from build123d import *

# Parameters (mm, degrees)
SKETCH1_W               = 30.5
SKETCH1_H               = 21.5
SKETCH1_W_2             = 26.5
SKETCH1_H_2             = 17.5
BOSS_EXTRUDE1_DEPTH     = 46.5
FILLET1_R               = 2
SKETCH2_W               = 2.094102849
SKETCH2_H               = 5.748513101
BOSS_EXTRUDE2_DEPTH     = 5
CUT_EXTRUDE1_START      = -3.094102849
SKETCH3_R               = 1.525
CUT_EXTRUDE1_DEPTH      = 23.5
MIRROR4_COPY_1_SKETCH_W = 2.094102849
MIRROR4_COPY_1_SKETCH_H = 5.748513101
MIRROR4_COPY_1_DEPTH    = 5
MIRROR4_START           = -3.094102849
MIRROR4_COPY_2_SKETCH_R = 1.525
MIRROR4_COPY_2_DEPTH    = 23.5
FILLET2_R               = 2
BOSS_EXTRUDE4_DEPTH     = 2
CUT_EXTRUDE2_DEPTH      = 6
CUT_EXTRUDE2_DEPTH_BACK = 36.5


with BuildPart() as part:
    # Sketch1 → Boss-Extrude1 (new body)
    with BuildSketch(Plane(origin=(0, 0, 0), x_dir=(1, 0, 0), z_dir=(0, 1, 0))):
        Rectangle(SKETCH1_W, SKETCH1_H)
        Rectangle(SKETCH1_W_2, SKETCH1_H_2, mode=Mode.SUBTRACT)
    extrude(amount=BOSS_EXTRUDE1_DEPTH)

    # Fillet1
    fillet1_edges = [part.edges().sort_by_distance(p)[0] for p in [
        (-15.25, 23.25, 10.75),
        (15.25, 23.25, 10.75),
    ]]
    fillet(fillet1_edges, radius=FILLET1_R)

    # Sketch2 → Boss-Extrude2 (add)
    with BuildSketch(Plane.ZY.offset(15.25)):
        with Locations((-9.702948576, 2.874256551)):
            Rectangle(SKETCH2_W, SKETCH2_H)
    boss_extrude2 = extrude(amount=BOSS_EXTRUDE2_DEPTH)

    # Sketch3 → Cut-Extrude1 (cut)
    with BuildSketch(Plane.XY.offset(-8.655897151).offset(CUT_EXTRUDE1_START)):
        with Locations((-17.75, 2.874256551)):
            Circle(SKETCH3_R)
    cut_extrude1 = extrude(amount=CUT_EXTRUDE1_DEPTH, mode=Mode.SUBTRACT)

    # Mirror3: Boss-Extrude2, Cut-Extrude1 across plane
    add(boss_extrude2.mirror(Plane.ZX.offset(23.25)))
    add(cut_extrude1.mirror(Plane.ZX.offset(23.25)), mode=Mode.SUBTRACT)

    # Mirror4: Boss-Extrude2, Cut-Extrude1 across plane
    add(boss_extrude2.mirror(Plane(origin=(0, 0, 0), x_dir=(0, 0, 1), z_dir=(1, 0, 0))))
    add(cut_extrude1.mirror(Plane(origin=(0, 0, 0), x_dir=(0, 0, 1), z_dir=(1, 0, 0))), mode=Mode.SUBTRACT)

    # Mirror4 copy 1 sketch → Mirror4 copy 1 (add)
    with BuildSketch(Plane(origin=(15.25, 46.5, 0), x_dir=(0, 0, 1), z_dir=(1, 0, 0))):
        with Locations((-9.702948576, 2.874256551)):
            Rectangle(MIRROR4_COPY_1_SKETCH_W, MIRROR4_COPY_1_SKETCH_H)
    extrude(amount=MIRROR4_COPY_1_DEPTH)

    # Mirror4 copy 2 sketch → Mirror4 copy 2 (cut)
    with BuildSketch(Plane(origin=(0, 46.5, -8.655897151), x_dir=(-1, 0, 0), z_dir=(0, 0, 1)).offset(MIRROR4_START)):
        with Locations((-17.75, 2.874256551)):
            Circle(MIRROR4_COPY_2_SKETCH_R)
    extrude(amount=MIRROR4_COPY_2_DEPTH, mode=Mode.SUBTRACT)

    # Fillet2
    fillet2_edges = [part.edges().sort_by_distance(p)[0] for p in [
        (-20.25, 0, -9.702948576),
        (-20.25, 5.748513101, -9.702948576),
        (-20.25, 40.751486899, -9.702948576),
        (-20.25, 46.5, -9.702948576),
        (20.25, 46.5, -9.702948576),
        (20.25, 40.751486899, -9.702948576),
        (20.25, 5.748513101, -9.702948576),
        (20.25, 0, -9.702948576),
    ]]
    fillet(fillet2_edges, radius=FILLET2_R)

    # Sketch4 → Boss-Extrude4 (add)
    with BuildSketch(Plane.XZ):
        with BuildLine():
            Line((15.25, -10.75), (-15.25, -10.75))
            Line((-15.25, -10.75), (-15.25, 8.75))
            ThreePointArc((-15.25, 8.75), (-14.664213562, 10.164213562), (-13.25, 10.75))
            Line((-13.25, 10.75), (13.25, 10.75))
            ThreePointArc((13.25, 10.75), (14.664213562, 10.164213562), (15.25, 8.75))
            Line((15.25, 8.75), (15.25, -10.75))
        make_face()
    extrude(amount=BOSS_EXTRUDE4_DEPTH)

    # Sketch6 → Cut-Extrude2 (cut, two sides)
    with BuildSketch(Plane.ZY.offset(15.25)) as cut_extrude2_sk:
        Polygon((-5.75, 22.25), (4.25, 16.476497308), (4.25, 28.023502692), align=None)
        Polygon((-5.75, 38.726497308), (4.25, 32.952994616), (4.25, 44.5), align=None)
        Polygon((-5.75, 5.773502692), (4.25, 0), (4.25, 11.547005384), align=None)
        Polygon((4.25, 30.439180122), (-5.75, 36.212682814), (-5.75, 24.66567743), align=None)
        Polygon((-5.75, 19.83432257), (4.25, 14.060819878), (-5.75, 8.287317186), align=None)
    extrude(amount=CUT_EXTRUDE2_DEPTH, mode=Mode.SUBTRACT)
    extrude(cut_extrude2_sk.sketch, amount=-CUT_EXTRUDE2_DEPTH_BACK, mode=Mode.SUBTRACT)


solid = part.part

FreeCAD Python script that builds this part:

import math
import FreeCAD as App
import Part
import Sketcher

V = App.Vector
Q = App.Units.Quantity


def edges_at(feature, points):
    """Names of the edges that pass closest to the given points."""
    edges = feature.Shape.Edges
    near = lambda p: min(range(len(edges)), key=lambda i: edges[i].distToShape(Part.Vertex(*p))[0])
    return sorted({f"Edge{near(p) + 1}" for p in points})

doc = App.newDocument("Part")
body = doc.addObject("PartDesign::Body", "Body")

# Sketch on XZ plane
sketch1 = doc.addObject("Sketcher::SketchObject", "Sketch")
body.addObject(sketch1)
sketch1.AttachmentSupport = (doc.XZ_Plane, [""])
sketch1.MapMode = "FlatFace"
sketch1.addGeometry(Part.LineSegment(V(-15, -11, 0), V(-15, 11, 0)), False)
sketch1.addGeometry(Part.LineSegment(V(-15, 11, 0), V(15, 11, 0)), False)
sketch1.addGeometry(Part.LineSegment(V(15, 11, 0), V(15, -11, 0)), False)
sketch1.addGeometry(Part.LineSegment(V(15, -11, 0), V(-15, -11, 0)), False)
sketch1.addGeometry(Part.LineSegment(V(13, 9, 0), V(-13, 9, 0)), False)
sketch1.addGeometry(Part.LineSegment(V(-13, 9, 0), V(-13, -9, 0)), False)
sketch1.addGeometry(Part.LineSegment(V(-13, -9, 0), V(13, -9, 0)), False)
sketch1.addGeometry(Part.LineSegment(V(13, -9, 0), V(13, 9, 0)), False)
sketch1.addConstraint(Sketcher.Constraint("Coincident", 0, 2, 1, 1))
sketch1.addConstraint(Sketcher.Constraint("Coincident", 1, 2, 2, 1))
sketch1.addConstraint(Sketcher.Constraint("Coincident", 2, 2, 3, 1))
sketch1.addConstraint(Sketcher.Constraint("Coincident", 3, 2, 0, 1))
sketch1.addConstraint(Sketcher.Constraint("Coincident", 4, 2, 5, 1))
sketch1.addConstraint(Sketcher.Constraint("Coincident", 5, 2, 6, 1))
sketch1.addConstraint(Sketcher.Constraint("Coincident", 6, 2, 7, 1))
sketch1.addConstraint(Sketcher.Constraint("Coincident", 7, 2, 4, 1))
sketch1.addConstraint(Sketcher.Constraint("Vertical", 0))
sketch1.addConstraint(Sketcher.Constraint("Horizontal", 1))
sketch1.addConstraint(Sketcher.Constraint("Vertical", 2))
sketch1.addConstraint(Sketcher.Constraint("Horizontal", 3))
sketch1.addConstraint(Sketcher.Constraint("Horizontal", 4))
sketch1.addConstraint(Sketcher.Constraint("Vertical", 5))
sketch1.addConstraint(Sketcher.Constraint("Horizontal", 6))
sketch1.addConstraint(Sketcher.Constraint("Vertical", 7))
sketch1.addConstraint(Sketcher.Constraint("Symmetric", 0, 2, 2, 2, -1, 1))
sketch1.addConstraint(Sketcher.Constraint("Symmetric", 4, 2, 6, 2, -1, 1))
sketch1.addConstraint(Sketcher.Constraint("DistanceX", 1, 1, 1, 2, 30.5))
sketch1.addConstraint(Sketcher.Constraint("DistanceX", 4, 2, 4, 1, 26.5))
sketch1.addConstraint(Sketcher.Constraint("DistanceY", 0, 1, 0, 2, 21.5))
sketch1.addConstraint(Sketcher.Constraint("DistanceY", 5, 2, 5, 1, 17.5))
pad1 = doc.addObject("PartDesign::Pad", "Pad")
body.addObject(pad1)
pad1.Profile = sketch1
pad1.Length = 46.5
pad1.Reversed = True
doc.recompute()

fillet = doc.addObject("PartDesign::Fillet", "Fillet")
body.addObject(fillet)
fillet.Base = (pad1, edges_at(pad1, [(-15.25, 23.25, 10.75), (15.25, 23.25, 10.75)]))
fillet.Radius = 2

# Sketch on YZ plane
sketch2 = doc.addObject("Sketcher::SketchObject", "Sketch001")
body.addObject(sketch2)
sketch2.AttachmentSupport = (doc.YZ_Plane, [""])
sketch2.MapMode = "FlatFace"
sketch2.AttachmentOffset = App.Placement(V(0, 0, -15.25), App.Rotation())
sketch2.addGeometry(Part.LineSegment(V(5.7, -10.8, 0), V(0, -10.8, 0)), False)
sketch2.addGeometry(Part.LineSegment(V(0, -10.8, 0), V(0, -8.7, 0)), False)
sketch2.addGeometry(Part.LineSegment(V(0, -8.7, 0), V(5.7, -8.7, 0)), False)
sketch2.addGeometry(Part.LineSegment(V(5.7, -8.7, 0), V(5.7, -10.8, 0)), False)
sketch2.addConstraint(Sketcher.Constraint("Coincident", 0, 2, 1, 1))
sketch2.addConstraint(Sketcher.Constraint("Coincident", 1, 2, 2, 1))
sketch2.addConstraint(Sketcher.Constraint("Coincident", 2, 2, 3, 1))
sketch2.addConstraint(Sketcher.Constraint("Coincident", 3, 2, 0, 1))
sketch2.addConstraint(Sketcher.Constraint("Horizontal", 0))
sketch2.addConstraint(Sketcher.Constraint("Vertical", 1))
sketch2.addConstraint(Sketcher.Constraint("Horizontal", 2))
sketch2.addConstraint(Sketcher.Constraint("Vertical", 3))
sketch2.addConstraint(Sketcher.Constraint("PointOnObject", 0, 2, -2))
sketch2.addConstraint(Sketcher.Constraint("DistanceY", 0, 2, -1, 1, 10.75))
sketch2.addConstraint(Sketcher.Constraint("DistanceX", 0, 2, 0, 1, 5.748513))
sketch2.addConstraint(Sketcher.Constraint("DistanceY", 1, 1, 1, 2, 2.094103))
pad2 = doc.addObject("PartDesign::Pad", "Pad001")
body.addObject(pad2)
pad2.Profile = sketch2
pad2.Length = 5
pad2.Reversed = True

# Sketch on XY plane
sketch3 = doc.addObject("Sketcher::SketchObject", "Sketch002")
body.addObject(sketch3)
sketch3.AttachmentSupport = (doc.XY_Plane, [""])
sketch3.MapMode = "FlatFace"
sketch3.AttachmentOffset = App.Placement(V(0, 0, -11.75), App.Rotation())
sketch3.addGeometry(Part.Circle(V(-17.8, 2.9, 0), V(0, 0, 1), 1.5), False)
sketch3.addConstraint(Sketcher.Constraint("Diameter", 0, 3.05))
sketch3.addConstraint(Sketcher.Constraint("DistanceX", 0, 3, -1, 1, 17.75))
sketch3.addConstraint(Sketcher.Constraint("DistanceY", -1, 1, 0, 3, 2.874257))
pocket1 = doc.addObject("PartDesign::Pocket", "Pocket")
body.addObject(pocket1)
pocket1.Profile = sketch3
pocket1.Length = 23.5
pocket1.Reversed = True
doc.recompute()

datumplane = doc.addObject("PartDesign::Plane", "DatumPlane")
body.addObject(datumplane)
datumplane.AttachmentSupport = (doc.XZ_Plane, [""])
datumplane.MapMode = "FlatFace"
datumplane.AttachmentOffset = App.Placement(V(0, 0, -23.25), App.Rotation())
mirrored = doc.addObject("PartDesign::Mirrored", "Mirrored")
body.addObject(mirrored)
mirrored.Originals = [pad2, pocket1]
mirrored.MirrorPlane = (datumplane, [""])
body.Tip = mirrored
doc.recompute()

mirrored2 = doc.addObject("PartDesign::Mirrored", "Mirrored001")
body.addObject(mirrored2)
mirrored2.Originals = [pad2, pocket1]
mirrored2.MirrorPlane = (doc.YZ_Plane, [""])
body.Tip = mirrored2

# Sketch on YZ plane
sketch4 = doc.addObject("Sketcher::SketchObject", "Sketch003")
body.addObject(sketch4)
sketch4.AttachmentSupport = (doc.YZ_Plane, [""])
sketch4.MapMode = "FlatFace"
sketch4.AttachmentOffset = App.Placement(V(0, 0, 15.25), App.Rotation())
sketch4.addGeometry(Part.LineSegment(V(40.8, -10.8, 0), V(46.5, -10.8, 0)), False)
sketch4.addGeometry(Part.LineSegment(V(46.5, -10.8, 0), V(46.5, -8.7, 0)), False)
sketch4.addGeometry(Part.LineSegment(V(46.5, -8.7, 0), V(40.8, -8.7, 0)), False)
sketch4.addGeometry(Part.LineSegment(V(40.8, -8.7, 0), V(40.8, -10.8, 0)), False)
sketch4.addConstraint(Sketcher.Constraint("Coincident", 0, 2, 1, 1))
sketch4.addConstraint(Sketcher.Constraint("Coincident", 1, 2, 2, 1))
sketch4.addConstraint(Sketcher.Constraint("Coincident", 2, 2, 3, 1))
sketch4.addConstraint(Sketcher.Constraint("Coincident", 3, 2, 0, 1))
sketch4.addConstraint(Sketcher.Constraint("Horizontal", 0))
sketch4.addConstraint(Sketcher.Constraint("Vertical", 1))
sketch4.addConstraint(Sketcher.Constraint("Horizontal", 2))
sketch4.addConstraint(Sketcher.Constraint("Vertical", 3))
sketch4.addConstraint(Sketcher.Constraint("DistanceX", -1, 1, 0, 2, 46.5))
sketch4.addConstraint(Sketcher.Constraint("DistanceY", 0, 2, -1, 1, 10.75))
sketch4.addConstraint(Sketcher.Constraint("DistanceX", 0, 1, 0, 2, 5.748513))
sketch4.addConstraint(Sketcher.Constraint("DistanceY", 1, 1, 1, 2, 2.094103))
pad3 = doc.addObject("PartDesign::Pad", "Pad002")
body.addObject(pad3)
pad3.Profile = sketch4
pad3.Length = 5

# Sketch on XY plane
sketch5 = doc.addObject("Sketcher::SketchObject", "Sketch004")
body.addObject(sketch5)
sketch5.AttachmentSupport = (doc.XY_Plane, [""])
sketch5.MapMode = "FlatFace"
sketch5.AttachmentOffset = App.Placement(V(0, 0, -11.75), App.Rotation())
sketch5.addGeometry(Part.Circle(V(17.8, 43.6, 0), V(0, 0, 1), 1.5), False)
sketch5.addConstraint(Sketcher.Constraint("Diameter", 0, 3.05))
sketch5.addConstraint(Sketcher.Constraint("DistanceX", -1, 1, 0, 3, 17.75))
sketch5.addConstraint(Sketcher.Constraint("DistanceY", -1, 1, 0, 3, 43.625743))
pocket2 = doc.addObject("PartDesign::Pocket", "Pocket001")
body.addObject(pocket2)
pocket2.Profile = sketch5
pocket2.Length = 23.5
pocket2.Reversed = True
doc.recompute()

fillet2 = doc.addObject("PartDesign::Fillet", "Fillet001")
body.addObject(fillet2)
fillet2.Base = (pocket2, edges_at(pocket2, [
    (-20.25, 0, -9.703),
    (-20.25, 5.749, -9.703),
    (-20.25, 40.751, -9.703),
    (-20.25, 46.5, -9.703),
    (20.25, 46.5, -9.703),
    (20.25, 40.751, -9.703),
    (20.25, 5.749, -9.703),
    (20.25, 0, -9.703),
]))
fillet2.Radius = 2

# Sketch on XZ plane
sketch6 = doc.addObject("Sketcher::SketchObject", "Sketch005")
body.addObject(sketch6)
sketch6.AttachmentSupport = (doc.XZ_Plane, [""])
sketch6.MapMode = "FlatFace"
sketch6.addGeometry(Part.LineSegment(V(-15.2, -10.8, 0), V(15.2, -10.8, 0)), False)
sketch6.addGeometry(Part.LineSegment(V(15.2, -10.8, 0), V(15.2, 8.8, 0)), False)
sketch6.addGeometry(Part.ArcOfCircle(Part.Circle(V(13.2, 8.7, 0), V(0, 0, 1), 2), math.radians(0), math.radians(90)), False)
sketch6.addGeometry(Part.LineSegment(V(13.2, 10.8, 0), V(-13.2, 10.8, 0)), False)
sketch6.addGeometry(Part.ArcOfCircle(Part.Circle(V(-13.2, 8.7, 0), V(0, 0, 1), 2), math.radians(90), math.radians(180)), False)
sketch6.addGeometry(Part.LineSegment(V(-15.2, 8.8, 0), V(-15.2, -10.8, 0)), False)
sketch6.addConstraint(Sketcher.Constraint("Coincident", 0, 2, 1, 1))
sketch6.addConstraint(Sketcher.Constraint("Tangent", 1, 2, 2, 1))
sketch6.addConstraint(Sketcher.Constraint("Tangent", 2, 2, 3, 1))
sketch6.addConstraint(Sketcher.Constraint("Tangent", 3, 2, 4, 1))
sketch6.addConstraint(Sketcher.Constraint("Tangent", 4, 2, 5, 1))
sketch6.addConstraint(Sketcher.Constraint("Coincident", 5, 2, 0, 1))
sketch6.addConstraint(Sketcher.Constraint("Horizontal", 0))
sketch6.addConstraint(Sketcher.Constraint("Vertical", 1))
sketch6.addConstraint(Sketcher.Constraint("Horizontal", 3))
sketch6.addConstraint(Sketcher.Constraint("Vertical", 5))
sketch6.addConstraint(Sketcher.Constraint("Equal", 2, 4))
sketch6.addConstraint(Sketcher.Constraint("Radius", 2, 2.0))
sketch6.addConstraint(Sketcher.Constraint("DistanceX", 0, 1, 0, 2, 30.5))
sketch6.addConstraint(Sketcher.Constraint("DistanceY", 1, 1, 1, 2, 19.5))
sketch6.addConstraint(Sketcher.Constraint("DistanceX", -1, 1, 2, 3, 13.25))
sketch6.addConstraint(Sketcher.Constraint("DistanceY", -1, 1, 2, 3, 8.75))
pad4 = doc.addObject("PartDesign::Pad", "Pad003")
body.addObject(pad4)
pad4.Profile = sketch6
pad4.Length = 2

# Sketch on YZ plane
sketch7 = doc.addObject("Sketcher::SketchObject", "Sketch006")
body.addObject(sketch7)
sketch7.AttachmentSupport = (doc.YZ_Plane, [""])
sketch7.MapMode = "FlatFace"
sketch7.AttachmentOffset = App.Placement(V(0, 0, -15.25), App.Rotation())
sketch7.addGeometry(Part.LineSegment(V(22, -6, 0), V(16, 4, 0)), False)
sketch7.addGeometry(Part.LineSegment(V(16, 4, 0), V(28, 4, 0)), False)
sketch7.addGeometry(Part.LineSegment(V(28, 4, 0), V(22, -6, 0)), False)
sketch7.addGeometry(Part.LineSegment(V(39, -6, 0), V(33, 4, 0)), False)
sketch7.addGeometry(Part.LineSegment(V(33, 4, 0), V(44, 4, 0)), False)
sketch7.addGeometry(Part.LineSegment(V(44, 4, 0), V(39, -6, 0)), False)
sketch7.addGeometry(Part.LineSegment(V(6, -6, 0), V(0, 4, 0)), False)
sketch7.addGeometry(Part.LineSegment(V(0, 4, 0), V(12, 4, 0)), False)
sketch7.addGeometry(Part.LineSegment(V(12, 4, 0), V(6, -6, 0)), False)
sketch7.addGeometry(Part.LineSegment(V(30, 4, 0), V(36, -6, 0)), False)
sketch7.addGeometry(Part.LineSegment(V(36, -6, 0), V(25, -6, 0)), False)
sketch7.addGeometry(Part.LineSegment(V(25, -6, 0), V(30, 4, 0)), False)
sketch7.addGeometry(Part.LineSegment(V(14, 4, 0), V(20, -6, 0)), False)
sketch7.addGeometry(Part.LineSegment(V(20, -6, 0), V(8, -6, 0)), False)
sketch7.addGeometry(Part.LineSegment(V(8, -6, 0), V(14, 4, 0)), False)
sketch7.addConstraint(Sketcher.Constraint("Coincident", 0, 2, 1, 1))
sketch7.addConstraint(Sketcher.Constraint("Coincident", 1, 2, 2, 1))
sketch7.addConstraint(Sketcher.Constraint("Coincident", 2, 2, 0, 1))
sketch7.addConstraint(Sketcher.Constraint("Coincident", 3, 2, 4, 1))
sketch7.addConstraint(Sketcher.Constraint("Coincident", 4, 2, 5, 1))
sketch7.addConstraint(Sketcher.Constraint("Coincident", 5, 2, 3, 1))
sketch7.addConstraint(Sketcher.Constraint("Coincident", 6, 2, 7, 1))
sketch7.addConstraint(Sketcher.Constraint("Coincident", 7, 2, 8, 1))
sketch7.addConstraint(Sketcher.Constraint("Coincident", 8, 2, 6, 1))
sketch7.addConstraint(Sketcher.Constraint("Coincident", 9, 2, 10, 1))
sketch7.addConstraint(Sketcher.Constraint("Coincident", 10, 2, 11, 1))
sketch7.addConstraint(Sketcher.Constraint("Coincident", 11, 2, 9, 1))
sketch7.addConstraint(Sketcher.Constraint("Coincident", 12, 2, 13, 1))
sketch7.addConstraint(Sketcher.Constraint("Coincident", 13, 2, 14, 1))
sketch7.addConstraint(Sketcher.Constraint("Coincident", 14, 2, 12, 1))
sketch7.addConstraint(Sketcher.Constraint("Horizontal", 1))
sketch7.addConstraint(Sketcher.Constraint("Horizontal", 4))
sketch7.addConstraint(Sketcher.Constraint("Horizontal", 7))
sketch7.addConstraint(Sketcher.Constraint("Horizontal", 10))
sketch7.addConstraint(Sketcher.Constraint("Horizontal", 13))
sketch7.addConstraint(Sketcher.Constraint("PointOnObject", 6, 2, -2))
sketch7.addConstraint(Sketcher.Constraint("Parallel", 0, 3))
sketch7.addConstraint(Sketcher.Constraint("Parallel", 2, 5))
sketch7.addConstraint(Sketcher.Constraint("Parallel", 3, 6))
sketch7.addConstraint(Sketcher.Constraint("Parallel", 5, 8))
sketch7.addConstraint(Sketcher.Constraint("Parallel", 6, 9))
sketch7.addConstraint(Sketcher.Constraint("Parallel", 8, 11))
sketch7.addConstraint(Sketcher.Constraint("Parallel", 9, 12))
sketch7.addConstraint(Sketcher.Constraint("Parallel", 11, 14))
sketch7.addConstraint(Sketcher.Constraint("Horizontal", 1, 2, 3, 2))
sketch7.addConstraint(Sketcher.Constraint("Horizontal", 2, 2, 5, 2))
sketch7.addConstraint(Sketcher.Constraint("Horizontal", 4, 2, 6, 2))
sketch7.addConstraint(Sketcher.Constraint("Horizontal", 5, 2, 8, 2))
sketch7.addConstraint(Sketcher.Constraint("Horizontal", 8, 2, 9, 2))
sketch7.addConstraint(Sketcher.Constraint("Horizontal", 7, 2, 11, 2))
sketch7.addConstraint(Sketcher.Constraint("Horizontal", 10, 2, 12, 2))
sketch7.addConstraint(Sketcher.Constraint("Horizontal", 11, 2, 14, 2))
sketch7.addConstraint(Sketcher.Constraint("Equal", 0, 2))
sketch7.addConstraint(Sketcher.Constraint("Angle", 0, Q("120 deg")))
sketch7.addConstraint(Sketcher.Constraint("DistanceY", 2, 2, 0, 2, 10.0))
sketch7.addConstraint(Sketcher.Constraint("DistanceX", -1, 1, 4, 2, 44.5))
sketch7.addConstraint(Sketcher.Constraint("DistanceY", -1, 1, 0, 2, 4.25))
sketch7.addConstraint(Sketcher.Constraint("DistanceX", -1, 1, 2, 2, 22.25))
sketch7.addConstraint(Sketcher.Constraint("DistanceX", -1, 1, 11, 2, 30.43918))
sketch7.addConstraint(Sketcher.Constraint("DistanceX", -1, 1, 14, 2, 14.06082))
pocket3 = doc.addObject("PartDesign::Pocket", "Pocket002")
body.addObject(pocket3)
pocket3.Profile = sketch7
pocket3.Type = "ThroughAll"
pocket3.Midplane = True

doc.recompute()
